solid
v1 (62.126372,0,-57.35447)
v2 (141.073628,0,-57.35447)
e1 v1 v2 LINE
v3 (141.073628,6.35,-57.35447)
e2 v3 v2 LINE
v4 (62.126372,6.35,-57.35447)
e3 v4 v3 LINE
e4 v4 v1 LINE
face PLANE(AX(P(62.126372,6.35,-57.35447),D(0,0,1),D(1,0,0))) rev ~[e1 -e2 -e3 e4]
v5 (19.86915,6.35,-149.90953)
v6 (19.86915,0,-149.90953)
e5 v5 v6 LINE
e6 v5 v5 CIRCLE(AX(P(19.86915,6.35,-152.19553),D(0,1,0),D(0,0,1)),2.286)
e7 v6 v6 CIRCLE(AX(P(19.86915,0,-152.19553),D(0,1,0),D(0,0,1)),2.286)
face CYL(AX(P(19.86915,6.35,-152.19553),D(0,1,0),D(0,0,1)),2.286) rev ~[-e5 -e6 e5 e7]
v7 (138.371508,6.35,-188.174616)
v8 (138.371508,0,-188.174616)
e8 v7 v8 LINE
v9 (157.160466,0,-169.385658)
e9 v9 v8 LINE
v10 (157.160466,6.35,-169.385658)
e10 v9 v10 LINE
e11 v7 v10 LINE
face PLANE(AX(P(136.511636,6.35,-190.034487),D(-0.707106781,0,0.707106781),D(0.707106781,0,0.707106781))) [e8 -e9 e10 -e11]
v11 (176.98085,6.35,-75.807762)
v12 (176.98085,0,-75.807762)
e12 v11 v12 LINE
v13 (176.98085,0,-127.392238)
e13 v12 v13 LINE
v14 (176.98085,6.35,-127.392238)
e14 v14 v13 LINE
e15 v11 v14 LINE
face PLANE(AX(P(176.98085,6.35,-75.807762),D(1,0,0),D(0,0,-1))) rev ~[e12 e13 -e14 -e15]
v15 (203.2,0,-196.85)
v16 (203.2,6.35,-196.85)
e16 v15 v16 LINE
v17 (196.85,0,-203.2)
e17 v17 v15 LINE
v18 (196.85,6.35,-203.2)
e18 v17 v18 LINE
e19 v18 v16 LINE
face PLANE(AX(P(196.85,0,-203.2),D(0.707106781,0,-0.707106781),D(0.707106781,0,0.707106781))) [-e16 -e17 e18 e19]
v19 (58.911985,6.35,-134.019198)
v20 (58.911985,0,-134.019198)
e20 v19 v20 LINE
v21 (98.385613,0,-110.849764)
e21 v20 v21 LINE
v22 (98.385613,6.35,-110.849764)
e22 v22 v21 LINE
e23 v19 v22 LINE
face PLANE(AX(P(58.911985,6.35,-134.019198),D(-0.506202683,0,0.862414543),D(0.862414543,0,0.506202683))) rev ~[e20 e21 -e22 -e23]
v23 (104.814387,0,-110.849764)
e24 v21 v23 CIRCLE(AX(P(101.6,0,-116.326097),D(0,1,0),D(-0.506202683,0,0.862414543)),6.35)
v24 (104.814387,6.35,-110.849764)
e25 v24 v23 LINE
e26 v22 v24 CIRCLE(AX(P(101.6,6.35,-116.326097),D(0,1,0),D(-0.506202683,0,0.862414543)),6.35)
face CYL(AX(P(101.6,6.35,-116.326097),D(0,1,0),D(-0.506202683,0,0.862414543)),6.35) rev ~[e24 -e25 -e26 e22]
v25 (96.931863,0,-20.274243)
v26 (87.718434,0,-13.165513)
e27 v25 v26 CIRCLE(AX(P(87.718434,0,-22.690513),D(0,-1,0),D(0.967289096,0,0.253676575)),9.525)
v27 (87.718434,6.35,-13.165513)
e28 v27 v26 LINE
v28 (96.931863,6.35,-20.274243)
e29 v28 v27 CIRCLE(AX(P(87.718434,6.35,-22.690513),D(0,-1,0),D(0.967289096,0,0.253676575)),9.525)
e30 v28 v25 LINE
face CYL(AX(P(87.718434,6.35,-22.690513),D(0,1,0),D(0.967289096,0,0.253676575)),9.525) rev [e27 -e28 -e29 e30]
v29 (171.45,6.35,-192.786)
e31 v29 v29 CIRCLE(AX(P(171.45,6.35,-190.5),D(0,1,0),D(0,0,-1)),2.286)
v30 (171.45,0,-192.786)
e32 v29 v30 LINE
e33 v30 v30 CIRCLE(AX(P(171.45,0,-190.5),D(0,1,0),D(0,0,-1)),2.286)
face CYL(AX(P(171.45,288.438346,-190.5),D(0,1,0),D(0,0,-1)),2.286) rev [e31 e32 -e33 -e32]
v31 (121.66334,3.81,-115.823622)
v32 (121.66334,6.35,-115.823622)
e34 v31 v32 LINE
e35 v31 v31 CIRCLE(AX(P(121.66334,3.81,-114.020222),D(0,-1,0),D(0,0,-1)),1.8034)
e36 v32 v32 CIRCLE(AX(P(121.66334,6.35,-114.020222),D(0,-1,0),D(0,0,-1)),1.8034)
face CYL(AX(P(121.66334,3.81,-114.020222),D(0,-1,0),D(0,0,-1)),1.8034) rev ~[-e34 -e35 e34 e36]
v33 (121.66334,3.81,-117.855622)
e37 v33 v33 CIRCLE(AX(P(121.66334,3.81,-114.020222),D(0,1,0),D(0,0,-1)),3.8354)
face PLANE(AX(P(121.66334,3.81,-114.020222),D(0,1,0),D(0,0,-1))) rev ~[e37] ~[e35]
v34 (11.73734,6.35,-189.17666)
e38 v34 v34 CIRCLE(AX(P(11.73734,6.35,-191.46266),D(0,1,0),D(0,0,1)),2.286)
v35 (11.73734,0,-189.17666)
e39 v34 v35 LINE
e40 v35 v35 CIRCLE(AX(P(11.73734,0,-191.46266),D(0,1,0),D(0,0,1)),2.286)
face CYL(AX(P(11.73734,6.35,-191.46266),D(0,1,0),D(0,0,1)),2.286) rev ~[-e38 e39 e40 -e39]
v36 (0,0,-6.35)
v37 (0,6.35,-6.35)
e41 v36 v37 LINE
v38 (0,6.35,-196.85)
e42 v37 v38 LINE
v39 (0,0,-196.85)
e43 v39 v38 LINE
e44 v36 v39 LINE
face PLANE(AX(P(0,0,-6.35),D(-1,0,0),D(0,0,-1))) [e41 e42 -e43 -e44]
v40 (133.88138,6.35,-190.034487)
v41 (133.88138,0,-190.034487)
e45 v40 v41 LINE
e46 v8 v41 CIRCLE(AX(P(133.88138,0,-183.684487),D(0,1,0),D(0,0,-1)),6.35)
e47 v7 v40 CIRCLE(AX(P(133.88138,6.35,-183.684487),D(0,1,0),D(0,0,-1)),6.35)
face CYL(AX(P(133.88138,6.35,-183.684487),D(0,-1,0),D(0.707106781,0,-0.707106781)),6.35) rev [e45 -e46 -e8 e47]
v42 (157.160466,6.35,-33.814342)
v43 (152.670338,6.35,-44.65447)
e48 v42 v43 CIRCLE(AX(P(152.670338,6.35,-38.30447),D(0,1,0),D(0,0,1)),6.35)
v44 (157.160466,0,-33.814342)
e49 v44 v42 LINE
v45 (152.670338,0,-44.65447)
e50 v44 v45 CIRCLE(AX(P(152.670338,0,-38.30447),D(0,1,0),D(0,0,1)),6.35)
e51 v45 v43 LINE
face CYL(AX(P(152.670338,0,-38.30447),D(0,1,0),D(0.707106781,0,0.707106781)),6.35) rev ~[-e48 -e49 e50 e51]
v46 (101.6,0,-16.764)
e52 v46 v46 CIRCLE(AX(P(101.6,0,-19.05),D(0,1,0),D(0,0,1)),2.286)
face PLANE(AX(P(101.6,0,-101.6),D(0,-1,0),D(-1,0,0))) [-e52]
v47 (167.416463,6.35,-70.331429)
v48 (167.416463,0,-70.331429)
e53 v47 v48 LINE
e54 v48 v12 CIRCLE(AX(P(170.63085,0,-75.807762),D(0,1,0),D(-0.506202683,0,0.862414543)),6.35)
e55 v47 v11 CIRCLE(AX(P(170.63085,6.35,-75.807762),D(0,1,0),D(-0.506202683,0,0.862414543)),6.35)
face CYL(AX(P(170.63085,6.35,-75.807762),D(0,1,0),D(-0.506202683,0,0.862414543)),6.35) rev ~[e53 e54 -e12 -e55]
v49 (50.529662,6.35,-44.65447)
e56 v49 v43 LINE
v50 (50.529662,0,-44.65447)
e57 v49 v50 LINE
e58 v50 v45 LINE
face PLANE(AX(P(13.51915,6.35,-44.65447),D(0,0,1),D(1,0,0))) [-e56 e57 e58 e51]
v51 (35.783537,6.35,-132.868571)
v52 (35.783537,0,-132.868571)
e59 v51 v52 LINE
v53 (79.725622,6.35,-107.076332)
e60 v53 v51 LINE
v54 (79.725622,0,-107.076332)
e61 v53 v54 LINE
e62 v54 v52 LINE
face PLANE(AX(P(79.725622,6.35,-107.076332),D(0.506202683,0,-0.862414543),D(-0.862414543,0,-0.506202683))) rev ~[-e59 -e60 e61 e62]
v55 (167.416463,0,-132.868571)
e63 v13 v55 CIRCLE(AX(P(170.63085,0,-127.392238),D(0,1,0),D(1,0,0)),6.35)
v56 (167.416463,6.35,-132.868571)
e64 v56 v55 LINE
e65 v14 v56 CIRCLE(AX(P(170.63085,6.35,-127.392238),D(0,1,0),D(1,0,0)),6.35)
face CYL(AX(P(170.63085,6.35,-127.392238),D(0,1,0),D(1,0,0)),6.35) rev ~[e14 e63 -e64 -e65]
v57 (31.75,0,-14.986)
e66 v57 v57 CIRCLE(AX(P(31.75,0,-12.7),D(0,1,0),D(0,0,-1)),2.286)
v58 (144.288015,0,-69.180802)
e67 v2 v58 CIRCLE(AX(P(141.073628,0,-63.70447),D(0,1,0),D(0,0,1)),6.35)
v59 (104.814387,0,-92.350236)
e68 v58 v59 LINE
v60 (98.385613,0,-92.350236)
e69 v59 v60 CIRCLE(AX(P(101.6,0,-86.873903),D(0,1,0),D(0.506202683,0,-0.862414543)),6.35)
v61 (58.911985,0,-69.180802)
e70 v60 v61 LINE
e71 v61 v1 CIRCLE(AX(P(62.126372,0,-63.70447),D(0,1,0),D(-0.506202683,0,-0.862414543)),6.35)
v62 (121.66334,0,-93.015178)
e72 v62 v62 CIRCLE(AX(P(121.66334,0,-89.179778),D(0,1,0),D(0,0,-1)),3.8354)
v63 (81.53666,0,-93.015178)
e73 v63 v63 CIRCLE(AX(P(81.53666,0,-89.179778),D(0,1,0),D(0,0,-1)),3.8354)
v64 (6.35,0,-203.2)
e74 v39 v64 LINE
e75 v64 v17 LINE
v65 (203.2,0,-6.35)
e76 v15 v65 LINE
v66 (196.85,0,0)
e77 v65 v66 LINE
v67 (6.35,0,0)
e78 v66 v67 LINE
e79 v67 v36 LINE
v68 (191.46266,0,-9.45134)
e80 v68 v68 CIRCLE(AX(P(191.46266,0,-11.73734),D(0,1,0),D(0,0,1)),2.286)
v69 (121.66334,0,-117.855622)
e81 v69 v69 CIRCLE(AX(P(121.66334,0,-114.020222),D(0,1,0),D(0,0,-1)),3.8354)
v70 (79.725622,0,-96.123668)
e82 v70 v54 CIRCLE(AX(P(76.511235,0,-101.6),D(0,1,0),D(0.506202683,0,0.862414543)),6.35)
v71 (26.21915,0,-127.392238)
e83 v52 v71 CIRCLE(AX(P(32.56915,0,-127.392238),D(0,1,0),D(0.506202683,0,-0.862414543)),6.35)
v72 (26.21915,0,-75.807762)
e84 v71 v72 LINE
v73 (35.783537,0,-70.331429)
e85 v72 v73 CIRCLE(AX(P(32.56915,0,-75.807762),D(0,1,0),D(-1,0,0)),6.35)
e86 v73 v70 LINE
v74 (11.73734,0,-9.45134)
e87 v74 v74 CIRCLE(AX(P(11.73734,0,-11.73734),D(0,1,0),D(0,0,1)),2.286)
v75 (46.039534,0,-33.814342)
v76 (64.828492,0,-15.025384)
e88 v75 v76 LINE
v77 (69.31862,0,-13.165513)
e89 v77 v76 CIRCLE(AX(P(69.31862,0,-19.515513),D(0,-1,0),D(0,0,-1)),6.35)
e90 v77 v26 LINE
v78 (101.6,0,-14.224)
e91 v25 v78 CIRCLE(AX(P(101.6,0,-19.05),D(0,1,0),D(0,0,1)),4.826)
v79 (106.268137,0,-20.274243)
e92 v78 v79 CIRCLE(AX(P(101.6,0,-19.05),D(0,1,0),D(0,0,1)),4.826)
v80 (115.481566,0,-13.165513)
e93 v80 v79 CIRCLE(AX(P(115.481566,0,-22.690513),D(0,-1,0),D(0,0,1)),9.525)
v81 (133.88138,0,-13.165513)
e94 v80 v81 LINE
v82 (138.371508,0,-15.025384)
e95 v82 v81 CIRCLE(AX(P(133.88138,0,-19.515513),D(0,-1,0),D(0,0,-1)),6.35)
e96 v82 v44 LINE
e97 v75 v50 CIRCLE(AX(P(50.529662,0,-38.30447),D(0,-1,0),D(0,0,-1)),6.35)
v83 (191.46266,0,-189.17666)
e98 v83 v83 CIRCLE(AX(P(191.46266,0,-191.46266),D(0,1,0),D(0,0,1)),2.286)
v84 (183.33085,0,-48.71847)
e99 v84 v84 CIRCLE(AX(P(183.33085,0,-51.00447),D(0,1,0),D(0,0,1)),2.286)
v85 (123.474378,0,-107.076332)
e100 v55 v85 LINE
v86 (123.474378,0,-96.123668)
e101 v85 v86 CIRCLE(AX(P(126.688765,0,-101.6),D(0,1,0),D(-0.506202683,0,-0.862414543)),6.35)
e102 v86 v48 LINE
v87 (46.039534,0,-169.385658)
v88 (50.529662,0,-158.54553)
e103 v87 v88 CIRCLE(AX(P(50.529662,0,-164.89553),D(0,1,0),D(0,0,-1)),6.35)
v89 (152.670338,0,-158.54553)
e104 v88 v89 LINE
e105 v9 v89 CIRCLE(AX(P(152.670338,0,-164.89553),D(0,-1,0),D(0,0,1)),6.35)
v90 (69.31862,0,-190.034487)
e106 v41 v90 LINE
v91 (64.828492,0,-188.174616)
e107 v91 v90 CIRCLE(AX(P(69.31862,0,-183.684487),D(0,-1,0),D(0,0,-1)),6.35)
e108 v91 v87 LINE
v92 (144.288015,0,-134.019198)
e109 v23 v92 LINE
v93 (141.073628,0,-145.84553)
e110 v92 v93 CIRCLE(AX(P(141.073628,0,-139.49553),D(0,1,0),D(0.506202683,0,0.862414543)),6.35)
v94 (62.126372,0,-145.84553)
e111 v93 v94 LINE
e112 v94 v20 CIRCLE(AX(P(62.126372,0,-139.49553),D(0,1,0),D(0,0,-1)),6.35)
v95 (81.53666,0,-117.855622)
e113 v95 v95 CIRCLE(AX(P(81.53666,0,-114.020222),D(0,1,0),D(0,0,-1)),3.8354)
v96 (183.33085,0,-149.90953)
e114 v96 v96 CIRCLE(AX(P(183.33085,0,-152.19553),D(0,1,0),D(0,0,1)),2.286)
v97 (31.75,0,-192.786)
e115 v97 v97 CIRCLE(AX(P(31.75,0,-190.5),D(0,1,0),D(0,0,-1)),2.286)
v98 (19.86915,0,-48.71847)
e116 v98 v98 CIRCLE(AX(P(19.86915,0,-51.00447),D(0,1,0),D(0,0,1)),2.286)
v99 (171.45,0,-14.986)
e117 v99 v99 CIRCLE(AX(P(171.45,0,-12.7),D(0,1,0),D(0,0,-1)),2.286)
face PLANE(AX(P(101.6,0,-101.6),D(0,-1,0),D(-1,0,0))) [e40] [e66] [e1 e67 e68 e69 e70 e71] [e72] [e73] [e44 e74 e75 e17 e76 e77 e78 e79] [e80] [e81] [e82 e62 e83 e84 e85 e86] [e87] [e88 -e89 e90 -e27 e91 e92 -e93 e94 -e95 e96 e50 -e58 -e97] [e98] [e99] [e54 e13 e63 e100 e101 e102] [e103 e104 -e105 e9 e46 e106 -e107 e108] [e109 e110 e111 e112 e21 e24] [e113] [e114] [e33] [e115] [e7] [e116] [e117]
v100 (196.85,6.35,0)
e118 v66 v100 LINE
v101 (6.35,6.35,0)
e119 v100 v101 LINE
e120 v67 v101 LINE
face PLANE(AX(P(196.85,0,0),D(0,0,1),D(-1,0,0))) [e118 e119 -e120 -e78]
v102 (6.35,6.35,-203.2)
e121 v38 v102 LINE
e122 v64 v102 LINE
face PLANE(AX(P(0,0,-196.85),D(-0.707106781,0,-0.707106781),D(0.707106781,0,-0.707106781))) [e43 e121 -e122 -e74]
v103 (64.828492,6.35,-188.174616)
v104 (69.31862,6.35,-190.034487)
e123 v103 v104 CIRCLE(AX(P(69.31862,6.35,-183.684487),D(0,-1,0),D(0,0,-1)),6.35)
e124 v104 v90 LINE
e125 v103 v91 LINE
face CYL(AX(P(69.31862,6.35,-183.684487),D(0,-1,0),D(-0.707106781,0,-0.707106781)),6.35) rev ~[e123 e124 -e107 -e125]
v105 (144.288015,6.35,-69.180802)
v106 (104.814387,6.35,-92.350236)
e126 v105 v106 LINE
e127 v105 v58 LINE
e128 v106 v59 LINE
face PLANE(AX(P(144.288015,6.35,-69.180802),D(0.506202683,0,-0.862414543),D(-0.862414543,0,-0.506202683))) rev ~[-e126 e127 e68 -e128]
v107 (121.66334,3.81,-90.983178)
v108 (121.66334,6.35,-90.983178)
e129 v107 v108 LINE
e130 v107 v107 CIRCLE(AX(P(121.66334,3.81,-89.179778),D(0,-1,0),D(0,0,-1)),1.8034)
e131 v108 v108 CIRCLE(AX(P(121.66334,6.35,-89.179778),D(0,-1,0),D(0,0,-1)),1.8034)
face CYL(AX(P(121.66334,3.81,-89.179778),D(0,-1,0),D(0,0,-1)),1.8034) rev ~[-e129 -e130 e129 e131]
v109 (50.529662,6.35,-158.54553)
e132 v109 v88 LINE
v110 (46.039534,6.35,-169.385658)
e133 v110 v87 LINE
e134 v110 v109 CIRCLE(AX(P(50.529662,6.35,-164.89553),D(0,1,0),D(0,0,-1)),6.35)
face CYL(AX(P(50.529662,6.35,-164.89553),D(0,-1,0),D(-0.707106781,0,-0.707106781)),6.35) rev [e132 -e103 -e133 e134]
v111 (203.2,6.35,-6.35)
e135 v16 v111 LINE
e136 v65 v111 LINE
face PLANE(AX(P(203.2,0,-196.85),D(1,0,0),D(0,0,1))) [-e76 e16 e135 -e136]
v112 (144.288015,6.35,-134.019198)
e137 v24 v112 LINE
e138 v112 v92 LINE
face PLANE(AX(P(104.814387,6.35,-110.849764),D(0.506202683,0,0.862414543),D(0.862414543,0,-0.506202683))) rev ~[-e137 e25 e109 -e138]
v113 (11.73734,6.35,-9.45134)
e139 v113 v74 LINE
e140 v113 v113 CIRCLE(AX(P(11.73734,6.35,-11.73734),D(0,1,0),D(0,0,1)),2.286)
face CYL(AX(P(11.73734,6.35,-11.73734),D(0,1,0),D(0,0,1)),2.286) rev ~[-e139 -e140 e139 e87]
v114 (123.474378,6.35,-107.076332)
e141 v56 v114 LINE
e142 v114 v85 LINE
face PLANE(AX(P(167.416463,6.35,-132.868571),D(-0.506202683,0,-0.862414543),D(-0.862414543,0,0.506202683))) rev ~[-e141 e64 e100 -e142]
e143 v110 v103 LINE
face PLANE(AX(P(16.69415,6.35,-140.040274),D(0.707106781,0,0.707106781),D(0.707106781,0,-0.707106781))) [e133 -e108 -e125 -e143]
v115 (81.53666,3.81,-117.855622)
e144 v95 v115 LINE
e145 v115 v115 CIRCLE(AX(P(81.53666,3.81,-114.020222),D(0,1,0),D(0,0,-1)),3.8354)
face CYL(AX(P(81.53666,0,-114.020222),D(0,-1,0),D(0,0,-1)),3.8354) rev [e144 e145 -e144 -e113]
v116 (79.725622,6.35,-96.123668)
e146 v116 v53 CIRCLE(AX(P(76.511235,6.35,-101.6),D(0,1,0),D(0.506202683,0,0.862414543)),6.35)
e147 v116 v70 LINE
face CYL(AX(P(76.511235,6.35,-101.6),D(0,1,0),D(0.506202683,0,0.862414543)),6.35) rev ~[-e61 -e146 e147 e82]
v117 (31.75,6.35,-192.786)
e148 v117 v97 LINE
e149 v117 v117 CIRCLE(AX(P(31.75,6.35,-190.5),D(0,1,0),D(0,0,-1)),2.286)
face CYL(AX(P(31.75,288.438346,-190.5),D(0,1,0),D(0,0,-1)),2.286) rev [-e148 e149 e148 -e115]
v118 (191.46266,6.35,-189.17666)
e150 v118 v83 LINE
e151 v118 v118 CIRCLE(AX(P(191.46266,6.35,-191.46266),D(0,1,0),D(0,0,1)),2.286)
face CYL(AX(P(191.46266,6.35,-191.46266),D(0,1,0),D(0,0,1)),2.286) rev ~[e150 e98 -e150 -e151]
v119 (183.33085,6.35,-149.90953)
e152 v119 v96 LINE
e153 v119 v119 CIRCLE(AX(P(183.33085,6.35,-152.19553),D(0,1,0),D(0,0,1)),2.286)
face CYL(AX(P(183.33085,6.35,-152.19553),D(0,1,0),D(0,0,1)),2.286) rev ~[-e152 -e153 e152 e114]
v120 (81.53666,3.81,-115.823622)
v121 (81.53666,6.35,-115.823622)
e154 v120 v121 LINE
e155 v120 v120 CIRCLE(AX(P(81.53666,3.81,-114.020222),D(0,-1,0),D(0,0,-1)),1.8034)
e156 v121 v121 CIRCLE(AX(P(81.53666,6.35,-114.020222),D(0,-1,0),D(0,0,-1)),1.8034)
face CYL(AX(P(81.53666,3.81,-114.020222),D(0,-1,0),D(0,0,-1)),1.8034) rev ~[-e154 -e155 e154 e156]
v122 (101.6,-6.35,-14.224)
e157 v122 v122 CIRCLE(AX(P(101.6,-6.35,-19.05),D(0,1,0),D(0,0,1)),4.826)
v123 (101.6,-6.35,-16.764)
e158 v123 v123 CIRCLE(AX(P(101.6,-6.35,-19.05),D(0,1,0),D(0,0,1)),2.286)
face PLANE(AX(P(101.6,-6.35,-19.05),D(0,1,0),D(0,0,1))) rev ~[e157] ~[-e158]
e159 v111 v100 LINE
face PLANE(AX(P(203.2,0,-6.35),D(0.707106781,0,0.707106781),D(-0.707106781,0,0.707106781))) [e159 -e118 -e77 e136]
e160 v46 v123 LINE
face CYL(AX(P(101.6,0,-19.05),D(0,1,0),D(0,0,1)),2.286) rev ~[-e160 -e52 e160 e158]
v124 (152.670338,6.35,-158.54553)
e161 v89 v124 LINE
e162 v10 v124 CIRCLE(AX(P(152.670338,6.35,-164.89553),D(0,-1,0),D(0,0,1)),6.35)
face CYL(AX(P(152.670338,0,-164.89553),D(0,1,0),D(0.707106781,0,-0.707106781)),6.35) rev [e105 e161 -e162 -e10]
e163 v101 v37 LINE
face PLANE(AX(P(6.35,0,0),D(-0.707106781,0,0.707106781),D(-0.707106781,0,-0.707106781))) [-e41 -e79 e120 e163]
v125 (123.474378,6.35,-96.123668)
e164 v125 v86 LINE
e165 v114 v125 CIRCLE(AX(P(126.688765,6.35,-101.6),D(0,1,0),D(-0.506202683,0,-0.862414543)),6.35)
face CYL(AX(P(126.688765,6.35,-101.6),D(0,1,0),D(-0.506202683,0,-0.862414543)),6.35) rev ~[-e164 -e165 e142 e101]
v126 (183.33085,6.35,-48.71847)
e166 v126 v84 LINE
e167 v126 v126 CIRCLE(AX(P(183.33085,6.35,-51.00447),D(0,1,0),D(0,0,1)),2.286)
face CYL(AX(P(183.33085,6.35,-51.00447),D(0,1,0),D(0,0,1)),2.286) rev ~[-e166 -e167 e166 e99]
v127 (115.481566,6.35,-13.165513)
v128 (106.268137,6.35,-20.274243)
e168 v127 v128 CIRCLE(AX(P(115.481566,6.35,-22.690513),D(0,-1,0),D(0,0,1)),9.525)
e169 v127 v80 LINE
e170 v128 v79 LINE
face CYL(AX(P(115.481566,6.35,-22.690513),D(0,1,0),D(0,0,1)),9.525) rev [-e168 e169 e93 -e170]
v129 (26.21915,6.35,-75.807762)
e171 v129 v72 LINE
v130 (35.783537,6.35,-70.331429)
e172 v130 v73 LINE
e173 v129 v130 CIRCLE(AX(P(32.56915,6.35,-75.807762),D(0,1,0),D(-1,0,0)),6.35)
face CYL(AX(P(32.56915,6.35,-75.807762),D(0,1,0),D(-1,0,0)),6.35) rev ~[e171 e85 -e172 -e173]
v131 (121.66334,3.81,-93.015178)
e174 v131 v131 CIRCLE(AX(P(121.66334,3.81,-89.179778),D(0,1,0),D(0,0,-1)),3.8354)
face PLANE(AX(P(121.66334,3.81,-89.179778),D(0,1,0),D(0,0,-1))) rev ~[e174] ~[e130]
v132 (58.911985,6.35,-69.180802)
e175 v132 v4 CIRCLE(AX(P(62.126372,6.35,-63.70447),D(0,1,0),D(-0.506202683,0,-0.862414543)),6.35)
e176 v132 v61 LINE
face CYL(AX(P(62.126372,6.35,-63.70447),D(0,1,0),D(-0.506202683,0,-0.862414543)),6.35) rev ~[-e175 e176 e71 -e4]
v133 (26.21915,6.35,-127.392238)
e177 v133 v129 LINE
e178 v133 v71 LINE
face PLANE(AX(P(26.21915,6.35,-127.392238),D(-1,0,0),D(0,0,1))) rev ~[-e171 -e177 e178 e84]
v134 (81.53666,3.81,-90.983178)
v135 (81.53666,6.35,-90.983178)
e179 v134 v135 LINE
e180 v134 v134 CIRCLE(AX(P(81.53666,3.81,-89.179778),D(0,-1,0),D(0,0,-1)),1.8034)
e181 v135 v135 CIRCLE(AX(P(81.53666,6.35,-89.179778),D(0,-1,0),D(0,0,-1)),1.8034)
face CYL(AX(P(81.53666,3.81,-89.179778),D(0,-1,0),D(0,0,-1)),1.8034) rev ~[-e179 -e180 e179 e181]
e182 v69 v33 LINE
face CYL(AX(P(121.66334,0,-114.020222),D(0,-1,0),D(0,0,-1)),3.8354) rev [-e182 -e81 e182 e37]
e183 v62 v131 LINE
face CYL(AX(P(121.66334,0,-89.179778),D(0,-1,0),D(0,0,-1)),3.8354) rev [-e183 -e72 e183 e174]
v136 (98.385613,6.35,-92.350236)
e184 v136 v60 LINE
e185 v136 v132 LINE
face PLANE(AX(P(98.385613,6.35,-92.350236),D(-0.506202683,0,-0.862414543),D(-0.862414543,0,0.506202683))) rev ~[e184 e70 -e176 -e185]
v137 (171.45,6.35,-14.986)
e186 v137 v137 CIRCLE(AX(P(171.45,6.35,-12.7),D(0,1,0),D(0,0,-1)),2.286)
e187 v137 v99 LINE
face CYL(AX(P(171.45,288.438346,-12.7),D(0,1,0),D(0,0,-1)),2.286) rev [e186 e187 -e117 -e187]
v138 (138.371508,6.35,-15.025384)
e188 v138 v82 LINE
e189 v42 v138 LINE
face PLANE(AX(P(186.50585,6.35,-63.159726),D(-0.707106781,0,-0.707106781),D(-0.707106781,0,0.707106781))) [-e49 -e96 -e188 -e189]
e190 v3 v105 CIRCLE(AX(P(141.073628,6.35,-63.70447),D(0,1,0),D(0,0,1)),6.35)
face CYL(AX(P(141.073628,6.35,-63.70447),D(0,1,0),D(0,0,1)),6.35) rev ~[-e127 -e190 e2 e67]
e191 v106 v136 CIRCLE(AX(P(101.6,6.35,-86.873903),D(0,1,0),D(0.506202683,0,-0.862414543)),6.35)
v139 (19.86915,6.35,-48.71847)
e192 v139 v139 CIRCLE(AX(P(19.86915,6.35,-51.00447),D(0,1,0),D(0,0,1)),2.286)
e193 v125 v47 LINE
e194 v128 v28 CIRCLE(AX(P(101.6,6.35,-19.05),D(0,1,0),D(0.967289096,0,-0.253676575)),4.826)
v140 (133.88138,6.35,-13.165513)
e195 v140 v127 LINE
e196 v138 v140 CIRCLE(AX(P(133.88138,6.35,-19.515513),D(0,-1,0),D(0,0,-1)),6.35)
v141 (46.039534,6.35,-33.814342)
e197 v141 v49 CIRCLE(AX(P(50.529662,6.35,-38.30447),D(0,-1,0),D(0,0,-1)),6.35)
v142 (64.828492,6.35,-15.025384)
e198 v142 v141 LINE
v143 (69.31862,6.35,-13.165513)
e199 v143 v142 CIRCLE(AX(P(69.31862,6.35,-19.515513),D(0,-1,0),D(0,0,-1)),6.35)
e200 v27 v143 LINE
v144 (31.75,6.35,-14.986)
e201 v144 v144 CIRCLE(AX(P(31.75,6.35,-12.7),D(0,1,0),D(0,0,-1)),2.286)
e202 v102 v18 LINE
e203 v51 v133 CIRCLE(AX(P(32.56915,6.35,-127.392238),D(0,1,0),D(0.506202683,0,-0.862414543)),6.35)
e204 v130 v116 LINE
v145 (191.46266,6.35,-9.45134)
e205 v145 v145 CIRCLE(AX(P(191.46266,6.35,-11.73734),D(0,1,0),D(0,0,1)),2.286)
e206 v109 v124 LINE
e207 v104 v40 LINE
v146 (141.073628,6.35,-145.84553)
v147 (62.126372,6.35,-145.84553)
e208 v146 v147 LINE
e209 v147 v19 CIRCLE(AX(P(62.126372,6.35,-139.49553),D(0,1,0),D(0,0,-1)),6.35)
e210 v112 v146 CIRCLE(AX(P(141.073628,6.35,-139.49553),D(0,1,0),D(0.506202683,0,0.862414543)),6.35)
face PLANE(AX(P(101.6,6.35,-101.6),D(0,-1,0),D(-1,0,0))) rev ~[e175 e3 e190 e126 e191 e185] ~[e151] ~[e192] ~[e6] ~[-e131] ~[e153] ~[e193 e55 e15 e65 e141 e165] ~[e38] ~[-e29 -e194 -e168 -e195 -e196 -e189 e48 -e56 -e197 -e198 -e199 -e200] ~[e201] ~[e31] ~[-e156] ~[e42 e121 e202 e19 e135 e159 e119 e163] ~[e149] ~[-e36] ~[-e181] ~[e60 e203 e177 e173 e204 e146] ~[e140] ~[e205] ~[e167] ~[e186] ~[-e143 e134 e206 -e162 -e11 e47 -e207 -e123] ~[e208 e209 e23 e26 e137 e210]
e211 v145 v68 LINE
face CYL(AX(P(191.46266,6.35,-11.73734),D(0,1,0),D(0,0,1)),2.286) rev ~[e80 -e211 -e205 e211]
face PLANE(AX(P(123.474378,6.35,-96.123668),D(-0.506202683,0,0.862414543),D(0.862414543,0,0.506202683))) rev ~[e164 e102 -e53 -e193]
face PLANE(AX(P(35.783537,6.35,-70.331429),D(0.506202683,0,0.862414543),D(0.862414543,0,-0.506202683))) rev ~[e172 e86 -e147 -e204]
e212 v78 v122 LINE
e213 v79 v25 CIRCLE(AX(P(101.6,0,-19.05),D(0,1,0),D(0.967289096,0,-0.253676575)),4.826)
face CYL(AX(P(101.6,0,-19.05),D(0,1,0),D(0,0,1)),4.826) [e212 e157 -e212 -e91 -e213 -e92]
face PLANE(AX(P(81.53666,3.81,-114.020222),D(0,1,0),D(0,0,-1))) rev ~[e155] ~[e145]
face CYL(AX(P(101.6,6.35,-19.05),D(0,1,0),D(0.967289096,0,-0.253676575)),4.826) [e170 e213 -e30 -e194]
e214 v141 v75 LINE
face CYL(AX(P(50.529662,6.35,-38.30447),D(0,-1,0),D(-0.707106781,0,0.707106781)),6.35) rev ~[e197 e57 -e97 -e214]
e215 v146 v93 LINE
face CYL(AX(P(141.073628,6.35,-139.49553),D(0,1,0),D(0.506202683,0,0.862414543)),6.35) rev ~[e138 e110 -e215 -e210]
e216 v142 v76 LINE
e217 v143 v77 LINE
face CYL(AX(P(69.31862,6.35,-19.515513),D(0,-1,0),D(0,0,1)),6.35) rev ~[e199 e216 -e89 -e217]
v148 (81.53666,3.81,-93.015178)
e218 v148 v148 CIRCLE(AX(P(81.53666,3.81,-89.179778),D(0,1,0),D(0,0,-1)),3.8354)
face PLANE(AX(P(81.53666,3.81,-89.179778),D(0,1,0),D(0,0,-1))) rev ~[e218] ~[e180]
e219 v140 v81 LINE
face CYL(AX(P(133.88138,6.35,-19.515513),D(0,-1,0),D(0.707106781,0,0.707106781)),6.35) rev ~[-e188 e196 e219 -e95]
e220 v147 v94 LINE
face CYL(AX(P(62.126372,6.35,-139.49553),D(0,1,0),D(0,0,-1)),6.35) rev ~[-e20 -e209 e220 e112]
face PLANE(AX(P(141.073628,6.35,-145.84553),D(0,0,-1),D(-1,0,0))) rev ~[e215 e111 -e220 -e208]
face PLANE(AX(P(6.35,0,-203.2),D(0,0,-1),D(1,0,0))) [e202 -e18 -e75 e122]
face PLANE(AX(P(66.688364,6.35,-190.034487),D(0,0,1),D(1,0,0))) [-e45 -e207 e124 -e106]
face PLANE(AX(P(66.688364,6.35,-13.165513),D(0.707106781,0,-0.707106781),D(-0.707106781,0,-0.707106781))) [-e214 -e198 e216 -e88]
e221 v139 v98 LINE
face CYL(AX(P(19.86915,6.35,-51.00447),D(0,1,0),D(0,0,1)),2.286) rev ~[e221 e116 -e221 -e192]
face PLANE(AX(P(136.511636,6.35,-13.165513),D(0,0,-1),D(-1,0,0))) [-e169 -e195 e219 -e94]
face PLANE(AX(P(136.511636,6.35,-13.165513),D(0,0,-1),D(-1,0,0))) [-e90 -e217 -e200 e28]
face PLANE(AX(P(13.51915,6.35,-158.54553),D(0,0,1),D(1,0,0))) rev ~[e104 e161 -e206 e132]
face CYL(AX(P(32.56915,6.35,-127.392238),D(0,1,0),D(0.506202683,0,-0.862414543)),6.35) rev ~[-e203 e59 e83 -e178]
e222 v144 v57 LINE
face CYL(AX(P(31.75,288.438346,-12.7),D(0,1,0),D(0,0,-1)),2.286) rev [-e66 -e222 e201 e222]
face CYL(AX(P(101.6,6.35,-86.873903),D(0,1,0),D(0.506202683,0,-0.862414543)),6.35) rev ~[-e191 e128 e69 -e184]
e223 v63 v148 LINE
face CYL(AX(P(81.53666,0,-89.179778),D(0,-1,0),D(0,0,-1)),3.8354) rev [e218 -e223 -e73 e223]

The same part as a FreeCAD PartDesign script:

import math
import FreeCAD as App
import Part
import Sketcher
Q = App.Units.Quantity


def edges_at(feature, points):
    """Names of the edges that pass closest to the given points."""
    edges = feature.Shape.Edges
    near = lambda p: min(range(len(edges)), key=lambda i: edges[i].distToShape(Part.Vertex(*p))[0])
    return sorted({f"Edge{near(p) + 1}" for p in points})


def add_polygon(sketch, points):
    """Adds a closed chain of lines whose ends are joined by coincident constraints."""
    first, n = sketch.GeometryCount, len(points)
    for a, b in zip(points, points[1:] + points[:1]):
        sketch.addGeometry(Part.LineSegment(App.Vector(*a, 0), App.Vector(*b, 0)), False)
    for i in range(n):
        sketch.addConstraint(Sketcher.Constraint("Coincident", first + i, 2, first + (i + 1) % n, 1))

doc = App.newDocument("Part")
body = doc.addObject("PartDesign::Body", "Body")

sketch1 = body.newObject("Sketcher::SketchObject", "Sketch")
sketch1.AttachmentSupport = (doc.getObject("XZ_Plane"), [""])
sketch1.MapMode = "FlatFace"
add_polygon(sketch1, [(6.35, -203.2), (0, -196.85), (0, -6.35), (6.35, 0), (196.85, 0), (203.2, -6.35), (203.2, -196.85), (196.85, -203.2)])
sketch1.addConstraint([
    Sketcher.Constraint("Vertical", 1),
    Sketcher.Constraint("Horizontal", 3),
    Sketcher.Constraint("Vertical", 5),
    Sketcher.Constraint("Horizontal", 7),
    Sketcher.Constraint("PointOnObject", 0, 2, -2),
    Sketcher.Constraint("PointOnObject", 2, 2, -1),
    Sketcher.Constraint("Perpendicular", 0, 2),
    Sketcher.Constraint("Perpendicular", 2, 4),
    Sketcher.Constraint("Perpendicular", 4, 6),
    Sketcher.Constraint("Horizontal", 1, 2, 4, 2),
    Sketcher.Constraint("Horizontal", 0, 2, 5, 2),
    Sketcher.Constraint("Vertical", 3, 2, 6, 2),
    Sketcher.Constraint("Vertical", 2, 2, 7, 2),
    Sketcher.Constraint("Equal", 7, 1),
    Sketcher.Constraint("DistanceX", 3, 1, 3, 2, Q("7.5 in")),
    Sketcher.Constraint("DistanceX", -1, 1, 4, 2, Q("8 in")),
])
pad1 = body.newObject("PartDesign::Pad", "Pad")
pad1.Profile = sketch1
pad1.Length = Q("0.25 in")
pad1.Reversed = True

sketch2 = body.newObject("Sketcher::SketchObject", "Sketch001")
sketch2.AttachmentSupport = (doc.getObject("XZ_Plane"), [""])
sketch2.MapMode = "FlatFace"
sketch2.AttachmentOffset = App.Placement(App.Vector(0, 0, -0.25 * 25.4), App.Rotation())
sketch2.addGeometry([
    Part.Circle(App.Vector(11.73734, -11.73734, 0), App.Vector(0, 0, 1), 2.286),
    Part.Circle(App.Vector(191.46266, -11.73734, 0), App.Vector(0, 0, 1), 2.286),
    Part.Circle(App.Vector(191.46266, -191.46266, 0), App.Vector(0, 0, 1), 2.286),
    Part.Circle(App.Vector(11.73734, -191.46266, 0), App.Vector(0, 0, 1), 2.286),
], False)
sketch2.addConstraint([
    Sketcher.Constraint("Equal", 0, 1),
    Sketcher.Constraint("Equal", 1, 2),
    Sketcher.Constraint("Equal", 2, 3),
    Sketcher.Constraint("Horizontal", 0, 3, 1, 3),
    Sketcher.Constraint("Horizontal", 2, 3, 3, 3),
    Sketcher.Constraint("Vertical", 1, 3, 2, 3),
    Sketcher.Constraint("Vertical", 0, 3, 3, 3),
    Sketcher.Constraint("Diameter", 0, Q("0.18 in")),
    Sketcher.Constraint("DistanceX", -1, 1, 0, 3, Q("0.4621 in")),
    Sketcher.Constraint("DistanceY", 0, 3, -1, 1, Q("0.4621 in")),
    Sketcher.Constraint("DistanceX", -1, 1, 1, 3, Q("7.5379 in")),
    Sketcher.Constraint("DistanceY", 2, 3, -1, 1, Q("7.5379 in")),
])
pocket1 = body.newObject("PartDesign::Pocket", "Pocket")
pocket1.Profile = sketch2
pocket1.Type = "ThroughAll"
pocket1.Reversed = True

sketch3 = body.newObject("Sketcher::SketchObject", "Sketch002")
sketch3.AttachmentSupport = (doc.getObject("XZ_Plane"), [""])
sketch3.MapMode = "FlatFace"
sketch3.AttachmentOffset = App.Placement(App.Vector(0, 0, -0.25 * 25.4), App.Rotation())
sketch3.addGeometry(Part.Circle(App.Vector(19.86915, -152.19553, 0), App.Vector(0, 0, 1), 2.286), False)
sketch3.addGeometry(Part.Circle(App.Vector(183.33085, -152.19553, 0), App.Vector(0, 0, 1), 2.286), False)
sketch3.addGeometry(Part.Circle(App.Vector(183.33085, -51.00447, 0), App.Vector(0, 0, 1), 2.286), False)
sketch3.addGeometry(Part.Circle(App.Vector(19.86915, -51.00447, 0), App.Vector(0, 0, 1), 2.286), False)
add_polygon(sketch3, [(66.688364, -190.034487), (16.69415, -140.040274), (16.69415, -63.159726), (66.688364, -13.165513), (136.511636, -13.165513), (186.50585, -63.159726), (186.50585, -140.040274), (136.511636, -190.034487)])
sketch3.addConstraint([
    Sketcher.Constraint("Vertical", 5),
    Sketcher.Constraint("Horizontal", 7),
    Sketcher.Constraint("Vertical", 9),
    Sketcher.Constraint("Horizontal", 11),
    Sketcher.Constraint("Equal", 0, 1),
    Sketcher.Constraint("Equal", 1, 2),
    Sketcher.Constraint("Equal", 2, 3),
    Sketcher.Constraint("Perpendicular", 4, 6),
    Sketcher.Constraint("Perpendicular", 6, 8),
    Sketcher.Constraint("Perpendicular", 8, 10),
    Sketcher.Constraint("Horizontal", 0, 3, 1, 3),
    Sketcher.Constraint("Horizontal", 2, 3, 3, 3),
    Sketcher.Constraint("Horizontal", 5, 2, 8, 2),
    Sketcher.Constraint("Horizontal", 4, 2, 9, 2),
    Sketcher.Constraint("Vertical", 1, 3, 2, 3),
    Sketcher.Constraint("Vertical", 0, 3, 3, 3),
    Sketcher.Constraint("Vertical", 7, 2, 10, 2),
    Sketcher.Constraint("Vertical", 6, 2, 11, 2),
    Sketcher.Constraint("Diameter", 0, Q("0.18 in")),
    Sketcher.Constraint("DistanceX", 4, 2, 0, 3, Q("0.125 in")),
    Sketcher.Constraint("DistanceX", 2, 3, 8, 2, Q("0.125 in")),
    Sketcher.Constraint("DistanceX", 0, 3, 1, 3, Q("6.4355 in")),
    Sketcher.Constraint("DistanceY", 1, 3, 2, 3, Q("3.9839 in")),
    Sketcher.Constraint("DistanceX", 7, 1, 7, 2, Q("69.823273 mm")),
    Sketcher.Constraint("DistanceY", 5, 1, 5, 2, Q("76.880548 mm")),
    Sketcher.Constraint("DistanceX", -1, 1, 0, 3, Q("19.86915 mm")),
    Sketcher.Constraint("DistanceY", 0, 3, -1, 1, Q("152.19553 mm")),
    Sketcher.Constraint("DistanceY", 4, 2, -1, 1, Q("140.040274 mm")),
])
pocket2 = body.newObject("PartDesign::Pocket", "Pocket001")
pocket2.Profile = sketch3
pocket2.Type = "ThroughAll"
pocket2.Reversed = True

sketch4 = body.newObject("Sketcher::SketchObject", "Sketch003")
sketch4.AttachmentSupport = (doc.getObject("XZ_Plane"), [""])
sketch4.MapMode = "FlatFace"
sketch4.AttachmentOffset = App.Placement(App.Vector(0, 0, -0.25 * 25.4), App.Rotation())
add_polygon(sketch4, [(13.51915, -158.54553), (13.51915, -44.65447), (189.68085, -44.65447), (189.68085, -158.54553)])
sketch4.addGeometry(Part.Circle(App.Vector(19.86915, -51.00447, 0), App.Vector(0, 0, 1), 2.286), False)
sketch4.addGeometry(Part.LineSegment(App.Vector(141.073628, -57.35447, 0), App.Vector(62.126372, -57.35447, 0)), False)
sketch4.addGeometry(Part.ArcOfCircle(Part.Circle(App.Vector(62.126372, -63.70447, 0), App.Vector(0, 0, 1), 6.35), math.radians(90), math.radians(239.588778)), False)
sketch4.addGeometry(Part.LineSegment(App.Vector(58.911985, -69.180802, 0), App.Vector(98.385613, -92.350236, 0)), False)
sketch4.addGeometry(Part.ArcOfCircle(Part.Circle(App.Vector(101.6, -86.873903, 0), App.Vector(0, 0, 1), 6.35), math.radians(-120.411222), math.radians(-59.588778)), False)
sketch4.addGeometry(Part.LineSegment(App.Vector(104.814387, -92.350236, 0), App.Vector(144.288015, -69.180802, 0)), False)
sketch4.addGeometry(Part.ArcOfCircle(Part.Circle(App.Vector(141.073628, -63.70447, 0), App.Vector(0, 0, 1), 6.35), math.radians(-59.588778), math.radians(90)), False)
sketch4.addGeometry(Part.Circle(App.Vector(183.33085, -51.00447, 0), App.Vector(0, 0, 1), 2.286), False)
sketch4.addGeometry(Part.LineSegment(App.Vector(26.21915, -75.807762, 0), App.Vector(26.21915, -127.392238, 0)), False)
sketch4.addGeometry(Part.ArcOfCircle(Part.Circle(App.Vector(32.56915, -127.392238, 0), App.Vector(0, 0, 1), 6.35), math.radians(180), math.radians(300.411222)), False)
sketch4.addGeometry(Part.LineSegment(App.Vector(35.783537, -132.868571, 0), App.Vector(79.725622, -107.076332, 0)), False)
sketch4.addGeometry(Part.ArcOfCircle(Part.Circle(App.Vector(76.511235, -101.6, 0), App.Vector(0, 0, 1), 6.35), math.radians(-59.588778), math.radians(59.588778)), False)
sketch4.addGeometry(Part.LineSegment(App.Vector(79.725622, -96.123668, 0), App.Vector(35.783537, -70.331429, 0)), False)
sketch4.addGeometry(Part.ArcOfCircle(Part.Circle(App.Vector(32.56915, -75.807762, 0), App.Vector(0, 0, 1), 6.35), math.radians(59.588778), math.radians(180)), False)
sketch4.addGeometry(Part.LineSegment(App.Vector(62.126372, -145.84553, 0), App.Vector(141.073628, -145.84553, 0)), False)
sketch4.addGeometry(Part.ArcOfCircle(Part.Circle(App.Vector(141.073628, -139.49553, 0), App.Vector(0, 0, 1), 6.35), math.radians(-90), math.radians(59.588778)), False)
sketch4.addGeometry(Part.LineSegment(App.Vector(144.288015, -134.019198, 0), App.Vector(104.814387, -110.849764, 0)), False)
sketch4.addGeometry(Part.ArcOfCircle(Part.Circle(App.Vector(101.6, -116.326097, 0), App.Vector(0, 0, 1), 6.35), math.radians(59.588778), math.radians(120.411222)), False)
sketch4.addGeometry(Part.LineSegment(App.Vector(98.385613, -110.849764, 0), App.Vector(58.911985, -134.019198, 0)), False)
sketch4.addGeometry(Part.ArcOfCircle(Part.Circle(App.Vector(62.126372, -139.49553, 0), App.Vector(0, 0, 1), 6.35), math.radians(120.411222), math.radians(270)), False)
sketch4.addGeometry(Part.Circle(App.Vector(19.86915, -152.19553, 0), App.Vector(0, 0, 1), 2.286), False)
sketch4.addGeometry(Part.LineSegment(App.Vector(176.98085, -127.392238, 0), App.Vector(176.98085, -75.807762, 0)), False)
sketch4.addGeometry(Part.ArcOfCircle(Part.Circle(App.Vector(170.63085, -75.807762, 0), App.Vector(0, 0, 1), 6.35), math.radians(0), math.radians(120.411222)), False)
sketch4.addGeometry(Part.LineSegment(App.Vector(167.416463, -70.331429, 0), App.Vector(123.474378, -96.123668, 0)), False)
sketch4.addGeometry(Part.ArcOfCircle(Part.Circle(App.Vector(126.688765, -101.6, 0), App.Vector(0, 0, 1), 6.35), math.radians(120.411222), math.radians(239.588778)), False)
sketch4.addGeometry(Part.LineSegment(App.Vector(123.474378, -107.076332, 0), App.Vector(167.416463, -132.868571, 0)), False)
sketch4.addGeometry(Part.ArcOfCircle(Part.Circle(App.Vector(170.63085, -127.392238, 0), App.Vector(0, 0, 1), 6.35), math.radians(-120.411222), math.radians(0)), False)
sketch4.addGeometry(Part.Circle(App.Vector(183.33085, -152.19553, 0), App.Vector(0, 0, 1), 2.286), False)
sketch4.addConstraint([
    Sketcher.Constraint("Tangent", 5, 2, 6, 1),
    Sketcher.Constraint("Tangent", 6, 2, 7, 1),
    Sketcher.Constraint("Tangent", 7, 2, 8, 1),
    Sketcher.Constraint("Tangent", 8, 2, 9, 1),
    Sketcher.Constraint("Tangent", 9, 2, 10, 1),
    Sketcher.Constraint("Tangent", 10, 2, 5, 1),
    Sketcher.Constraint("Tangent", 12, 2, 13, 1),
    Sketcher.Constraint("Tangent", 13, 2, 14, 1),
    Sketcher.Constraint("Tangent", 14, 2, 15, 1),
    Sketcher.Constraint("Tangent", 15, 2, 16, 1),
    Sketcher.Constraint("Tangent", 16, 2, 17, 1),
    Sketcher.Constraint("Tangent", 17, 2, 12, 1),
    Sketcher.Constraint("Tangent", 18, 2, 19, 1),
    Sketcher.Constraint("Tangent", 19, 2, 20, 1),
    Sketcher.Constraint("Tangent", 20, 2, 21, 1),
    Sketcher.Constraint("Tangent", 21, 2, 22, 1),
    Sketcher.Constraint("Tangent", 22, 2, 23, 1),
    Sketcher.Constraint("Tangent", 23, 2, 18, 1),
    Sketcher.Constraint("Tangent", 25, 2, 26, 1),
    Sketcher.Constraint("Tangent", 26, 2, 27, 1),
    Sketcher.Constraint("Tangent", 27, 2, 28, 1),
    Sketcher.Constraint("Tangent", 28, 2, 29, 1),
    Sketcher.Constraint("Tangent", 29, 2, 30, 1),
    Sketcher.Constraint("Tangent", 30, 2, 25, 1),
    Sketcher.Constraint("Vertical", 0),
    Sketcher.Constraint("Horizontal", 1),
    Sketcher.Constraint("Vertical", 2),
    Sketcher.Constraint("Horizontal", 3),
    Sketcher.Constraint("Horizontal", 5),
    Sketcher.Constraint("Vertical", 12),
    Sketcher.Constraint("Horizontal", 18),
    Sketcher.Constraint("Vertical", 25),
    Sketcher.Constraint("Equal", 6, 8),
    Sketcher.Constraint("Equal", 8, 10),
    Sketcher.Constraint("Equal", 4, 11),
    Sketcher.Constraint("Equal", 10, 13),
    Sketcher.Constraint("Equal", 13, 15),
    Sketcher.Constraint("Equal", 15, 17),
    Sketcher.Constraint("Equal", 17, 19),
    Sketcher.Constraint("Equal", 19, 21),
    Sketcher.Constraint("Equal", 21, 23),
    Sketcher.Constraint("Equal", 11, 24),
    Sketcher.Constraint("Equal", 23, 26),
    Sketcher.Constraint("Equal", 26, 28),
    Sketcher.Constraint("Equal", 28, 30),
    Sketcher.Constraint("Equal", 24, 31),
    Sketcher.Constraint("Parallel", 9, 14),
    Sketcher.Constraint("Parallel", 7, 16),
    Sketcher.Constraint("Parallel", 16, 20),
    Sketcher.Constraint("Parallel", 14, 22),
    Sketcher.Constraint("Parallel", 22, 27),
    Sketcher.Constraint("Parallel", 20, 29),
    Sketcher.Constraint("Horizontal", 4, 3, 11, 3),
    Sketcher.Constraint("Horizontal", 17, 3, 26, 3),
    Sketcher.Constraint("Horizontal", 15, 3, 28, 3),
    Sketcher.Constraint("Horizontal", 13, 3, 30, 3),
    Sketcher.Constraint("Horizontal", 24, 3, 31, 3),
    Sketcher.Constraint("Vertical", 10, 3, 19, 3),
    Sketcher.Constraint("Vertical", 8, 3, 21, 3),
    Sketcher.Constraint("Vertical", 4, 3, 24, 3),
    Sketcher.Constraint("Vertical", 11, 3, 31, 3),
    Sketcher.Constraint("Diameter", 4, Q("0.18 in")),
    Sketcher.Constraint("Radius", 6, Q("0.25 in")),
    Sketcher.Constraint("DistanceX", -1, 1, 8, 3, Q("4 in")),
    Sketcher.Constraint("DistanceY", 15, 3, -1, 1, Q("4 in")),
    Sketcher.Constraint("DistanceY", 6, 3, 4, 3, Q("0.5 in")),
    Sketcher.Constraint("DistanceX", 4, 3, 13, 3, Q("0.5 in")),
    Sketcher.Constraint("DistanceY", 24, 3, 23, 3, Q("0.5 in")),
    Sketcher.Constraint("DistanceX", 26, 3, 11, 3, Q("0.5 in")),
    Sketcher.Constraint("DistanceX", 3, 2, 12, 2, Q("0.5 in")),
    Sketcher.Constraint("DistanceX", 25, 2, 1, 2, Q("0.5 in")),
    Sketcher.Constraint("DistanceY", 4, 3, 0, 2, Q("0.25 in")),
    Sketcher.Constraint("DistanceY", 2, 2, 31, 3, Q("0.25 in")),
    Sketcher.Constraint("DistanceX", 1, 1, 1, 2, Q("6.9355 in")),
    Sketcher.Constraint("DistanceY", 0, 1, 0, 2, Q("4.4839 in")),
    Sketcher.Constraint("Distance", 7, Q("45.77106 mm")),
    Sketcher.Constraint("DistanceX", 5, 2, 5, 1, Q("78.947255 mm")),
    Sketcher.Constraint("DistanceY", 12, 2, 12, 1, Q("51.584477 mm")),
    Sketcher.Constraint("DistanceX", -1, 1, 4, 3, Q("19.86915 mm")),
    Sketcher.Constraint("DistanceY", 4, 3, -1, 1, Q("51.00447 mm")),
])
pad2 = body.newObject("PartDesign::Pad", "Pad001")
pad2.Profile = sketch4
pad2.Length = Q("0.25 in")
doc.recompute()

fillet = body.newObject("PartDesign::Fillet", "Fillet")
fillet.Base = (pad2, edges_at(pad2, [
    (66.688, 3.175, -190.034),
    (136.512, 3.175, -190.034),
    (136.512, 3.175, -13.166),
    (66.688, 3.175, -13.166),
    (35.199, 3.175, -44.654),
    (168.001, 3.175, -158.546),
    (35.199, 3.175, -158.546),
    (168.001, 3.175, -44.654),
]))
fillet.Radius = Q("0.25 in")

sketch5 = body.newObject("Sketcher::SketchObject", "Sketch004")
sketch5.AttachmentSupport = (doc.getObject("XZ_Plane"), [""])
sketch5.MapMode = "FlatFace"
sketch5.AttachmentOffset = App.Placement(App.Vector(0, 0, -0.25 * 25.4), App.Rotation())
sketch5.addGeometry([
    Part.LineSegment(App.Vector(87.718434, -13.165513, 0), App.Vector(115.481566, -13.165513, 0)),
    Part.ArcOfCircle(Part.Circle(App.Vector(115.481566, -22.690513, 0), App.Vector(0, 0, 1), 9.525), math.radians(90), math.radians(165.30482)),
    Part.ArcOfCircle(Part.Circle(App.Vector(101.6, -19.05, 0), App.Vector(0, 0, 1), 4.826), math.radians(-165.30482), math.radians(-14.69518)),
    Part.ArcOfCircle(Part.Circle(App.Vector(87.718434, -22.690513, 0), App.Vector(0, 0, 1), 9.525), math.radians(14.69518), math.radians(90)),
], False)
sketch5.addConstraint([
    Sketcher.Constraint("Tangent", 0, 2, 1, 1),
    Sketcher.Constraint("Tangent", 1, 2, 2, 2),
    Sketcher.Constraint("Tangent", 2, 1, 3, 1),
    Sketcher.Constraint("Tangent", 3, 2, 0, 1),
    Sketcher.Constraint("Horizontal", 0),
    Sketcher.Constraint("Equal", 1, 3),
    Sketcher.Constraint("Radius", 2, Q("0.19 in")),
    Sketcher.Constraint("DistanceX", -1, 1, 2, 3, Q("4 in")),
    Sketcher.Constraint("Radius", 1, Q("0.375 in")),
    Sketcher.Constraint("DistanceY", 2, 3, -1, 1, Q("0.75 in")),
    Sketcher.Constraint("DistanceX", 0, 1, 0, 2, Q("27.763132 mm")),
])
pad3 = body.newObject("PartDesign::Pad", "Pad002")
pad3.Profile = sketch5
pad3.Length = Q("0.25 in")

sketch6 = body.newObject("Sketcher::SketchObject", "Sketch005")
sketch6.AttachmentSupport = (doc.getObject("XZ_Plane"), [""])
sketch6.MapMode = "FlatFace"
sketch6.addGeometry([
    Part.Circle(App.Vector(101.6, -19.05, 0), App.Vector(0, 0, 1), 4.826),
    Part.Circle(App.Vector(101.6, -19.05, 0), App.Vector(0, 0, 1), 2.286),
], False)
sketch6.addConstraint([
    Sketcher.Constraint("Coincident", 1, 3, 0, 3),
    Sketcher.Constraint("Diameter", 0, Q("0.38 in")),
    Sketcher.Constraint("Diameter", 1, Q("0.18 in")),
    Sketcher.Constraint("DistanceX", -1, 1, 0, 3, Q("4 in")),
    Sketcher.Constraint("DistanceY", 0, 3, -1, 1, Q("0.75 in")),
])
pad4 = body.newObject("PartDesign::Pad", "Pad003")
pad4.Profile = sketch6
pad4.Length = Q("0.25 in")

sketch7 = body.newObject("Sketcher::SketchObject", "Sketch006")
sketch7.AttachmentSupport = (doc.getObject("XZ_Plane"), [""])
sketch7.MapMode = "FlatFace"
sketch7.addGeometry([
    Part.Circle(App.Vector(81.53666, -114.020222, 0), App.Vector(0, 0, 1), 3.8354),
    Part.Circle(App.Vector(121.66334, -114.020222, 0), App.Vector(0, 0, 1), 3.8354),
    Part.Circle(App.Vector(121.66334, -89.179778, 0), App.Vector(0, 0, 1), 3.8354),
    Part.Circle(App.Vector(81.53666, -89.179778, 0), App.Vector(0, 0, 1), 3.8354),
], False)
sketch7.addConstraint([
    Sketcher.Constraint("Equal", 0, 1),
    Sketcher.Constraint("Equal", 1, 2),
    Sketcher.Constraint("Equal", 2, 3),
    Sketcher.Constraint("Horizontal", 0, 3, 1, 3),
    Sketcher.Constraint("Horizontal", 2, 3, 3, 3),
    Sketcher.Constraint("Vertical", 1, 3, 2, 3),
    Sketcher.Constraint("Vertical", 0, 3, 3, 3),
    Sketcher.Constraint("Diameter", 0, Q("0.302 in")),
    Sketcher.Constraint("DistanceX", -1, 1, 0, 3, Q("81.53666 mm")),
    Sketcher.Constraint("DistanceX", -1, 1, 1, 3, Q("121.66334 mm")),
    Sketcher.Constraint("DistanceY", 0, 3, -1, 1, Q("114.020222 mm")),
    Sketcher.Constraint("DistanceY", 2, 3, -1, 1, Q("89.179778 mm")),
])
pocket3 = body.newObject("PartDesign::Pocket", "Pocket002")
pocket3.Profile = sketch7
pocket3.Length = Q("0.15 in")

sketch8 = body.newObject("Sketcher::SketchObject", "Sketch007")
sketch8.AttachmentSupport = (doc.getObject("XZ_Plane"), [""])
sketch8.MapMode = "FlatFace"
sketch8.AttachmentOffset = App.Placement(App.Vector(0, 0, -0.15 * 25.4), App.Rotation())
sketch8.addGeometry([
    Part.Circle(App.Vector(81.53666, -114.020222, 0), App.Vector(0, 0, 1), 1.8034),
    Part.Circle(App.Vector(121.66334, -114.020222, 0), App.Vector(0, 0, 1), 1.8034),
    Part.Circle(App.Vector(121.66334, -89.179778, 0), App.Vector(0, 0, 1), 1.8034),
    Part.Circle(App.Vector(81.53666, -89.179778, 0), App.Vector(0, 0, 1), 1.8034),
], False)
sketch8.addConstraint([
    Sketcher.Constraint("Equal", 0, 1),
    Sketcher.Constraint("Equal", 1, 2),
    Sketcher.Constraint("Equal", 2, 3),
    Sketcher.Constraint("Horizontal", 0, 3, 1, 3),
    Sketcher.Constraint("Horizontal", 2, 3, 3, 3),
    Sketcher.Constraint("Vertical", 1, 3, 2, 3),
    Sketcher.Constraint("Vertical", 0, 3, 3, 3),
    Sketcher.Constraint("Diameter", 0, Q("0.142 in")),
    Sketcher.Constraint("DistanceX", -1, 1, 0, 3, Q("81.53666 mm")),
    Sketcher.Constraint("DistanceX", -1, 1, 1, 3, Q("121.66334 mm")),
    Sketcher.Constraint("DistanceY", 0, 3, -1, 1, Q("114.020222 mm")),
    Sketcher.Constraint("DistanceY", 2, 3, -1, 1, Q("89.179778 mm")),
])
pocket4 = body.newObject("PartDesign::Pocket", "Pocket003")
pocket4.Profile = sketch8
pocket4.Type = "ThroughAll"

sketch9 = body.newObject("Sketcher::SketchObject", "Sketch008")
sketch9.AttachmentSupport = (doc.getObject("XZ_Plane"), [""])
sketch9.MapMode = "FlatFace"
sketch9.addGeometry([
    Part.Circle(App.Vector(31.75, -12.7, 0), App.Vector(0, 0, 1), 2.286),
    Part.Circle(App.Vector(171.45, -12.7, 0), App.Vector(0, 0, 1), 2.286),
    Part.Circle(App.Vector(171.45, -190.5, 0), App.Vector(0, 0, 1), 2.286),
    Part.Circle(App.Vector(31.75, -190.5, 0), App.Vector(0, 0, 1), 2.286),
], False)
sketch9.addConstraint([
    Sketcher.Constraint("Equal", 0, 1),
    Sketcher.Constraint("Equal", 1, 2),
    Sketcher.Constraint("Equal", 2, 3),
    Sketcher.Constraint("Horizontal", 0, 3, 1, 3),
    Sketcher.Constraint("Horizontal", 2, 3, 3, 3),
    Sketcher.Constraint("Vertical", 1, 3, 2, 3),
    Sketcher.Constraint("Vertical", 0, 3, 3, 3),
    Sketcher.Constraint("Diameter", 0, Q("0.18 in")),
    Sketcher.Constraint("DistanceY", 2, 3, 1, 3, Q("7 in")),
    Sketcher.Constraint("DistanceY", 0, 3, -1, 1, Q("0.5 in")),
    Sketcher.Constraint("DistanceX", 0, 3, 1, 3, Q("5.5 in")),
    Sketcher.Constraint("DistanceX", -1, 1, 0, 3, Q("1.25 in")),
])
pocket5 = body.newObject("PartDesign::Pocket", "Pocket004")
pocket5.Profile = sketch9
pocket5.Type = "ThroughAll"
pocket5.Midplane = True

doc.recompute()
